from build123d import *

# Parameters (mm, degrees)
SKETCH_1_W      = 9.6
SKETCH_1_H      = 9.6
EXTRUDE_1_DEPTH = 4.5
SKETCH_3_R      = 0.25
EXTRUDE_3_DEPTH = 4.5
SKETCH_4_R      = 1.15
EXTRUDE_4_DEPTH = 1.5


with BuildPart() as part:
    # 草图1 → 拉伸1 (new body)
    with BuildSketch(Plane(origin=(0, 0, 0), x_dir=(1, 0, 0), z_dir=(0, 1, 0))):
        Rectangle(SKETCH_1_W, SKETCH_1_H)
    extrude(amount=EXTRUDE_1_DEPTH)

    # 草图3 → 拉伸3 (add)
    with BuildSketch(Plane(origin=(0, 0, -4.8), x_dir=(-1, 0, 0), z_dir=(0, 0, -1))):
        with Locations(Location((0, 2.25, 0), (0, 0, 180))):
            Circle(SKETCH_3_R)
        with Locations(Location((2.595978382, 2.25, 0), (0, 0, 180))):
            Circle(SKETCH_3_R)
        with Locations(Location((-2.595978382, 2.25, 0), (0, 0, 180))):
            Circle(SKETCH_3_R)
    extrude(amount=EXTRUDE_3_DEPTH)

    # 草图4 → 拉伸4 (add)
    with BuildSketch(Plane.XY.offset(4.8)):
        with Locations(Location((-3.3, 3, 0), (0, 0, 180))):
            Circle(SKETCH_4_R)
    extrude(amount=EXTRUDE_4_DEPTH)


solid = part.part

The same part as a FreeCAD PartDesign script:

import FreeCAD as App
import Part
import Sketcher

V = App.Vector
Q = App.Units.Quantity

doc = App.newDocument("Part")
body = doc.addObject("PartDesign::Body", "Body")

# Sketch on XZ plane
sketch1 = body.newObject("Sketcher::SketchObject", "Sketch")
sketch1.AttachmentSupport = (doc.getObject("XZ_Plane"), [""])
sketch1.MapMode = "FlatFace"
sketch1.addGeometry([
    Part.LineSegment(V(-4.8, -4.8, 0), V(-4.8, 4.8, 0)),
    Part.LineSegment(V(-4.8, 4.8, 0), V(4.8, 4.8, 0)),
    Part.LineSegment(V(4.8, 4.8, 0), V(4.8, -4.8, 0)),
    Part.LineSegment(V(4.8, -4.8, 0), V(-4.8, -4.8, 0)),
], False)
sketch1.addConstraint([
    Sketcher.Constraint("Coincident", 0, 2, 1, 1),
    Sketcher.Constraint("Coincident", 1, 2, 2, 1),
    Sketcher.Constraint("Coincident", 2, 2, 3, 1),
    Sketcher.Constraint("Coincident", 3, 2, 0, 1),
    Sketcher.Constraint("Vertical", 0),
    Sketcher.Constraint("Horizontal", 1),
    Sketcher.Constraint("Vertical", 2),
    Sketcher.Constraint("Horizontal", 3),
    Sketcher.Constraint("Symmetric", 0, 2, 2, 2, -1, 1),
    Sketcher.Constraint("Equal", 3, 0),
    Sketcher.Constraint("DistanceX", 1, 1, 1, 2, Q("9.6 mm")),
])
pad1 = body.newObject("PartDesign::Pad", "Pad")
pad1.Profile = sketch1
pad1.Length = 4.5
pad1.Reversed = True

# Sketch on XY plane
sketch2 = body.newObject("Sketcher::SketchObject", "Sketch001")
sketch2.AttachmentSupport = (doc.getObject("XY_Plane"), [""])
sketch2.MapMode = "FlatFace"
sketch2.AttachmentOffset = App.Placement(V(0, 0, -4.8), App.Rotation())
sketch2.addGeometry([
    Part.Circle(V(0, 2.25, 0), V(0, 0, 1), 0.25),
    Part.Circle(V(-2.595978, 2.25, 0), V(0, 0, 1), 0.25),
    Part.Circle(V(2.595978, 2.25, 0), V(0, 0, 1), 0.25),
], False)
sketch2.addConstraint([
    Sketcher.Constraint("Equal", 0, 1),
    Sketcher.Constraint("Equal", 1, 2),
    Sketcher.Constraint("Symmetric", 1, 3, 2, 3, -2),
    Sketcher.Constraint("PointOnObject", 0, 3, -2),
    Sketcher.Constraint("Horizontal", 0, 3, 1, 3),
    Sketcher.Constraint("Diameter", 0, Q("0.5 mm")),
    Sketcher.Constraint("DistanceY", -1, 1, 0, 3, Q("2.25 mm")),
    Sketcher.Constraint("DistanceX", 1, 3, -1, 1, Q("2.595978 mm")),
])
pad2 = body.newObject("PartDesign::Pad", "Pad001")
pad2.Profile = sketch2
pad2.Length = 4.5
pad2.Reversed = True

# Sketch on XY plane
sketch3 = body.newObject("Sketcher::SketchObject", "Sketch002")
sketch3.AttachmentSupport = (doc.getObject("XY_Plane"), [""])
sketch3.MapMode = "FlatFace"
sketch3.AttachmentOffset = App.Placement(V(0, 0, 4.8), App.Rotation())
sketch3.addGeometry(Part.Circle(V(-3.3, 3, 0), V(0, 0, 1), 1.15), False)
sketch3.addConstraint([
    Sketcher.Constraint("Diameter", 0, Q("2.3 mm")),
    Sketcher.Constraint("DistanceY", -1, 1, 0, 3, Q("3 mm")),
    Sketcher.Constraint("DistanceX", 0, 3, -1, 1, Q("3.3 mm")),
])
pad3 = body.newObject("PartDesign::Pad", "Pad002")
pad3.Profile = sketch3
pad3.Length = 1.5

doc.recompute()
